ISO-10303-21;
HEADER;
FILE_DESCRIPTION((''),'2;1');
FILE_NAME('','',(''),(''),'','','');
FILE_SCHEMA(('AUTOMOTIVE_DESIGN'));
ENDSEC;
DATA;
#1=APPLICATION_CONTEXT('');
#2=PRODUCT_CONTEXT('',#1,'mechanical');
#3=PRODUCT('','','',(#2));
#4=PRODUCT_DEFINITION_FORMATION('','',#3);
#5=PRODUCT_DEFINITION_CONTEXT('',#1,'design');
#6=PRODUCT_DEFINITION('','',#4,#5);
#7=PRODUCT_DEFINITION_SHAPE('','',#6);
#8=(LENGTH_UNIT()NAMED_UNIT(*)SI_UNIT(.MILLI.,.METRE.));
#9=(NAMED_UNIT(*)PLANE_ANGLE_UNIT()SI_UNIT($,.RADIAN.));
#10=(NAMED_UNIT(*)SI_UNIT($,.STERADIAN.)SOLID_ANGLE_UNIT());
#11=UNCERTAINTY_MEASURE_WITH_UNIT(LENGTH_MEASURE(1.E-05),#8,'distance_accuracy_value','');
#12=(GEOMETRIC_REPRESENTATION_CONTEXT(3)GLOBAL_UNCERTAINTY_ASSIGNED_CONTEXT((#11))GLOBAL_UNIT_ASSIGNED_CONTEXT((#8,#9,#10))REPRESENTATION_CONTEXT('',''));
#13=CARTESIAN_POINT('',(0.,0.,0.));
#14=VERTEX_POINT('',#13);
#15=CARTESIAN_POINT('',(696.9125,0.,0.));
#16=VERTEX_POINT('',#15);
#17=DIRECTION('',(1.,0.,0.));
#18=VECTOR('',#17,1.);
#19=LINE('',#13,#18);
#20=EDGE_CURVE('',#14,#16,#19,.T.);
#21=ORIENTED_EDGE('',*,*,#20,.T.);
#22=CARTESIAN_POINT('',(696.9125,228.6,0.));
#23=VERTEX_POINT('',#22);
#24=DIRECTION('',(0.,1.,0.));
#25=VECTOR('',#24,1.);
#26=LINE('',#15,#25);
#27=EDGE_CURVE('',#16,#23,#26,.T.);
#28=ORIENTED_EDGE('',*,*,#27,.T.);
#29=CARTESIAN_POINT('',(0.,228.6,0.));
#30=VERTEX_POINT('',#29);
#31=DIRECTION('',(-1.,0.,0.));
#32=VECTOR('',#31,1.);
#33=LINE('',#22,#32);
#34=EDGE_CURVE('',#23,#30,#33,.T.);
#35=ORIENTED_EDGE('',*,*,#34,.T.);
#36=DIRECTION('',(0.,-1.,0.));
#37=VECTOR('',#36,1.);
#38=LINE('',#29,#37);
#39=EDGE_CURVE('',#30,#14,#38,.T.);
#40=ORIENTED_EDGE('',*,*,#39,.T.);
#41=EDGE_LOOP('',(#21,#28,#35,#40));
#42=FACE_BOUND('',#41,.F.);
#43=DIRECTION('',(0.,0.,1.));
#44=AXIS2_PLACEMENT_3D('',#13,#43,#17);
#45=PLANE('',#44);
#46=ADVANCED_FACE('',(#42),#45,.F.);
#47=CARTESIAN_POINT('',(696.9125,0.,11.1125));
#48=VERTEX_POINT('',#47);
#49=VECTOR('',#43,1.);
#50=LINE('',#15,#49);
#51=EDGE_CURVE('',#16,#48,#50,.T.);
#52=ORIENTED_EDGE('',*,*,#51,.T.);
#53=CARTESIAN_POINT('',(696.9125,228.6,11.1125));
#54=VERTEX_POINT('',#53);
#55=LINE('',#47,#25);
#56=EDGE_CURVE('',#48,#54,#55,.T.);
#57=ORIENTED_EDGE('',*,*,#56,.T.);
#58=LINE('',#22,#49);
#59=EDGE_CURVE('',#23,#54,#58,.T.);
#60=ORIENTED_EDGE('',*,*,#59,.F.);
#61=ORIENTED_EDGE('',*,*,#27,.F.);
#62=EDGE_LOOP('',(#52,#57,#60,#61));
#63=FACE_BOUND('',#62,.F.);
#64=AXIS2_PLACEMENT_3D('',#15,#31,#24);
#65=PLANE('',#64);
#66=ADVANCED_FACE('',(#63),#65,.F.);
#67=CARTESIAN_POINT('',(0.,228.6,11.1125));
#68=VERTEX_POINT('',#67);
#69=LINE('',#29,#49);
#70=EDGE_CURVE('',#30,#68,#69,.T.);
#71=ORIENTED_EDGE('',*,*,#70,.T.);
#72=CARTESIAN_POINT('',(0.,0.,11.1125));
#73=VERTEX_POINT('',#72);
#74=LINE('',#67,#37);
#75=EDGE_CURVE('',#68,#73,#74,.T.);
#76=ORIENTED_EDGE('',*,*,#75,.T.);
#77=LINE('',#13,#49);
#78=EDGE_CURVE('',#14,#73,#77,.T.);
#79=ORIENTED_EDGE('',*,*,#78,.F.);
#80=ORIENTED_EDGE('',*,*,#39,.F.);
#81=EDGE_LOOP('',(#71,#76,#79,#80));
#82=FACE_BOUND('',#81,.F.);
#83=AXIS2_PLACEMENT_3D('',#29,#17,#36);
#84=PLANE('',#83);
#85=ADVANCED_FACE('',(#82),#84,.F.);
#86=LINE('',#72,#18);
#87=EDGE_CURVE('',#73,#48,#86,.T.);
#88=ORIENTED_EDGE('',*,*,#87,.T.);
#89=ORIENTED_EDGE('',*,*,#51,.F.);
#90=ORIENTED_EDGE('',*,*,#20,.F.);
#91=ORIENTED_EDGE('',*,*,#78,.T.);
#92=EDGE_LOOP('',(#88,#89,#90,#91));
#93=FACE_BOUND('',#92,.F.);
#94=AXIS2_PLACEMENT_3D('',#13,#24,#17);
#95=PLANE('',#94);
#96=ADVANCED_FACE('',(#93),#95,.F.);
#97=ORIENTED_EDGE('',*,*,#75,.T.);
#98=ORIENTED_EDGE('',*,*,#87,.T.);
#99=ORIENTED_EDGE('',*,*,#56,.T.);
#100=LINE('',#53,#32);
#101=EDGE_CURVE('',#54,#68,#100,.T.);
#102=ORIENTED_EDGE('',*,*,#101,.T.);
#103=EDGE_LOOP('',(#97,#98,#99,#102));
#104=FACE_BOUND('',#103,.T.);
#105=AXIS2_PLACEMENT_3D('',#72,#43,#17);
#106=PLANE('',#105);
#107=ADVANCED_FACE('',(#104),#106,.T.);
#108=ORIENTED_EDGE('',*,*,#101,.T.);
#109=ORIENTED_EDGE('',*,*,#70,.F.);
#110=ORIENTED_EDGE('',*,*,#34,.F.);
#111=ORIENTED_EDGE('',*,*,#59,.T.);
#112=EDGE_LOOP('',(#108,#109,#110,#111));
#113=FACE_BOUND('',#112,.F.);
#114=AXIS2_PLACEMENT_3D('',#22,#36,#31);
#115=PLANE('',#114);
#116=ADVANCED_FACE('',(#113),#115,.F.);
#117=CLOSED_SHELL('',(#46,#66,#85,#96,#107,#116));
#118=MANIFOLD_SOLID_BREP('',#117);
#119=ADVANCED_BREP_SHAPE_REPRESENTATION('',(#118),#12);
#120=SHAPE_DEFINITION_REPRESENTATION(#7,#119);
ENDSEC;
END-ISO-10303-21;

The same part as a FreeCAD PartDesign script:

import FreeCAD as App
import Part
import Sketcher

V = App.Vector
Q = App.Units.Quantity

doc = App.newDocument("Part")
params = doc.addObject("Spreadsheet::Sheet", "Params")
for row, (alias, value) in enumerate([
    ("sketch1_height", "9 in"),
    ("sketch1_width", "27.4375 in"),
    ("pad1_length", "0.4375 in"),
], start=1):
    params.set(f"A{row}", alias)
    params.set(f"B{row}", "=" + value)
    params.setAlias(f"B{row}", alias)

body = doc.addObject("PartDesign::Body", "Body")

# Sketch on XY plane
sketch1 = body.newObject("Sketcher::SketchObject", "Sketch")
sketch1.AttachmentSupport = (doc.getObject("XY_Plane"), [""])
sketch1.MapMode = "FlatFace"
sketch1.addGeometry([
    Part.LineSegment(V(0, 229, 0), V(0, 0, 0)),
    Part.LineSegment(V(0, 0, 0), V(697, 0, 0)),
    Part.LineSegment(V(697, 0, 0), V(697, 229, 0)),
    Part.LineSegment(V(697, 229, 0), V(0, 229, 0)),
], False)
sketch1.addConstraint([
    Sketcher.Constraint("Coincident", 0, 2, 1, 1),
    Sketcher.Constraint("Coincident", 1, 2, 2, 1),
    Sketcher.Constraint("Coincident", 2, 2, 3, 1),
    Sketcher.Constraint("Coincident", 3, 2, 0, 1),
    Sketcher.Constraint("Vertical", 0),
    Sketcher.Constraint("Horizontal", 1),
    Sketcher.Constraint("Vertical", 2),
    Sketcher.Constraint("Horizontal", 3),
    Sketcher.Constraint("Coincident", 0, 2, -1, 1),
    Sketcher.Constraint("DistanceY", 0, 2, 0, 1, Q("9 in")),
    Sketcher.Constraint("DistanceX", 1, 1, 1, 2, Q("27.4375 in")),
])
sketch1.setExpression("Constraints[9]", "Params.sketch1_height")
sketch1.setExpression("Constraints[10]", "Params.sketch1_width")
pad1 = body.newObject("PartDesign::Pad", "Pad")
pad1.Profile = sketch1
pad1.setExpression("Length", "Params.pad1_length")

doc.recompute()
